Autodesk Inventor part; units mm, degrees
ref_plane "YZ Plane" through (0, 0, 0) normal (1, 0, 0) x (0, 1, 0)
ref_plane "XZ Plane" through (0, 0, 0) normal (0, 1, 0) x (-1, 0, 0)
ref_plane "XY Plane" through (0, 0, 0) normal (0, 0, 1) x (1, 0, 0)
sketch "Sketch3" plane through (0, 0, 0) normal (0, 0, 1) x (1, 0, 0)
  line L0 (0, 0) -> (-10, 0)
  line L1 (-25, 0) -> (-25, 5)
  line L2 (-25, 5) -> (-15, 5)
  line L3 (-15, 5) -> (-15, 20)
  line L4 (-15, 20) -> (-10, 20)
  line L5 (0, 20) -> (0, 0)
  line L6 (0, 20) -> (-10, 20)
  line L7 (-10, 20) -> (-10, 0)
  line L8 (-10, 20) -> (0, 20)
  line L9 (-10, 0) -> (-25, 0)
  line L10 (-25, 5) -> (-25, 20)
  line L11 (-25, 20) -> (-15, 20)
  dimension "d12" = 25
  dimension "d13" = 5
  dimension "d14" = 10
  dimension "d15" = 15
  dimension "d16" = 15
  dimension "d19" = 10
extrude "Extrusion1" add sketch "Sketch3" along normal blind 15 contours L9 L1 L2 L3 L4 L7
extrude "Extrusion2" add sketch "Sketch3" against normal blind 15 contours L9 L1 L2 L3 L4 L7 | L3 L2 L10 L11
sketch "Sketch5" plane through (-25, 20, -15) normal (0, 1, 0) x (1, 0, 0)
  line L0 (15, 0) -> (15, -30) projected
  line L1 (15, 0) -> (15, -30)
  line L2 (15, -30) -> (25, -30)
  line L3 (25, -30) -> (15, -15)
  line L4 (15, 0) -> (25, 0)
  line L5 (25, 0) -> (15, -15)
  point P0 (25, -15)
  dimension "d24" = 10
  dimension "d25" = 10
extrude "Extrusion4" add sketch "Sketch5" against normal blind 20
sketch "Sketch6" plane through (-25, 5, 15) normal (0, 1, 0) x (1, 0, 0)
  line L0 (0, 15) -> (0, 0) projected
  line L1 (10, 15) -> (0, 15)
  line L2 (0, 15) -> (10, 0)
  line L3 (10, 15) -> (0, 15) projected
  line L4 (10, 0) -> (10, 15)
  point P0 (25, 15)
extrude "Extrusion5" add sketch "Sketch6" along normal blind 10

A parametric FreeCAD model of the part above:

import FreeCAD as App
import Part
import Sketcher

doc = App.newDocument("Part")
params = doc.addObject("Spreadsheet::Sheet", "Params")
for row, (alias, value) in enumerate([
    ("sketch1_width", "15 mm"),
    ("sketch1_width2", "5 mm"),
    ("pad1_length", "15 mm"),
    ("sketch2_width", "15 mm"),
    ("sketch2_height", "20 mm"),
    ("pad2_length", "15 mm"),
    ("sketch3_width", "10 mm"),
    ("sketch3_height", "15 mm"),
    ("pad3_length", "20 mm"),
    ("sketch4_width", "10 mm"),
    ("sketch4_height", "15 mm"),
    ("pad4_length", "10 mm"),
], start=1):
    params.set(f"A{row}", alias)
    params.set(f"B{row}", "=" + value)
    params.setAlias(f"B{row}", alias)

body = doc.addObject("PartDesign::Body", "Body")

sketch1 = doc.addObject("Sketcher::SketchObject", "Sketch")
body.addObject(sketch1)
sketch1.AttachmentSupport = (doc.XY_Plane, [""])
sketch1.MapMode = "FlatFace"
sketch1.addGeometry([
    Part.LineSegment(App.Vector(-25, 0, 0), App.Vector(-10, 0, 0)),
    Part.LineSegment(App.Vector(-10, 0, 0), App.Vector(-10, 20, 0)),
    Part.LineSegment(App.Vector(-10, 20, 0), App.Vector(-15, 20, 0)),
    Part.LineSegment(App.Vector(-15, 20, 0), App.Vector(-15, 5, 0)),
    Part.LineSegment(App.Vector(-15, 5, 0), App.Vector(-25, 5, 0)),
    Part.LineSegment(App.Vector(-25, 5, 0), App.Vector(-25, 0, 0)),
], False)
sketch1.addConstraint([
    Sketcher.Constraint("Coincident", 0, 2, 1, 1),
    Sketcher.Constraint("Coincident", 1, 2, 2, 1),
    Sketcher.Constraint("Coincident", 2, 2, 3, 1),
    Sketcher.Constraint("Coincident", 3, 2, 4, 1),
    Sketcher.Constraint("Coincident", 4, 2, 5, 1),
    Sketcher.Constraint("Coincident", 5, 2, 0, 1),
    Sketcher.Constraint("Horizontal", 0),
    Sketcher.Constraint("Vertical", 1),
    Sketcher.Constraint("Horizontal", 2),
    Sketcher.Constraint("Vertical", 3),
    Sketcher.Constraint("Horizontal", 4),
    Sketcher.Constraint("Vertical", 5),
    Sketcher.Constraint("PointOnObject", 0, 2, -1),
    Sketcher.Constraint("Equal", 0, 3),
    Sketcher.Constraint("Equal", 2, 5),
    Sketcher.Constraint("DistanceX", 0, 1, 0, 2, 15.0),
    Sketcher.Constraint("DistanceX", 2, 2, 2, 1, 5.0),
    Sketcher.Constraint("DistanceX", 0, 2, -1, 1, 10.0),
])
sketch1.setExpression("Constraints[15]", "Params.sketch1_width")
sketch1.setExpression("Constraints[16]", "Params.sketch1_width2")
pad1 = doc.addObject("PartDesign::Pad", "Pad")
body.addObject(pad1)
pad1.Profile = sketch1
pad1.setExpression("Length", "Params.pad1_length")

sketch2 = doc.addObject("Sketcher::SketchObject", "Sketch001")
body.addObject(sketch2)
sketch2.AttachmentSupport = (doc.XY_Plane, [""])
sketch2.MapMode = "FlatFace"
sketch2.addGeometry([
    Part.LineSegment(App.Vector(-25, 0, 0), App.Vector(-10, 0, 0)),
    Part.LineSegment(App.Vector(-10, 0, 0), App.Vector(-10, 20, 0)),
    Part.LineSegment(App.Vector(-10, 20, 0), App.Vector(-25, 20, 0)),
    Part.LineSegment(App.Vector(-25, 20, 0), App.Vector(-25, 0, 0)),
], False)
sketch2.addConstraint([
    Sketcher.Constraint("Coincident", 0, 2, 1, 1),
    Sketcher.Constraint("Coincident", 1, 2, 2, 1),
    Sketcher.Constraint("Coincident", 2, 2, 3, 1),
    Sketcher.Constraint("Coincident", 3, 2, 0, 1),
    Sketcher.Constraint("Horizontal", 0),
    Sketcher.Constraint("Vertical", 1),
    Sketcher.Constraint("Horizontal", 2),
    Sketcher.Constraint("Vertical", 3),
    Sketcher.Constraint("PointOnObject", 0, 2, -1),
    Sketcher.Constraint("DistanceX", 0, 1, 0, 2, 15.0),
    Sketcher.Constraint("DistanceX", 0, 2, -1, 1, 10.0),
    Sketcher.Constraint("DistanceY", 1, 1, 1, 2, 20.0),
])
sketch2.setExpression("Constraints[9]", "Params.sketch2_width")
sketch2.setExpression("Constraints[11]", "Params.sketch2_height")
pad2 = doc.addObject("PartDesign::Pad", "Pad001")
body.addObject(pad2)
pad2.Profile = sketch2
pad2.setExpression("Length", "Params.pad2_length")
pad2.Reversed = True

sketch3 = doc.addObject("Sketcher::SketchObject", "Sketch002")
body.addObject(sketch3)
sketch3.AttachmentSupport = (doc.XZ_Plane, [""])
sketch3.MapMode = "FlatFace"
sketch3.AttachmentOffset = App.Placement(App.Vector(0, 0, -20), App.Rotation())
sketch3.addGeometry([
    Part.LineSegment(App.Vector(0, -15, 0), App.Vector(-10, -15, 0)),
    Part.LineSegment(App.Vector(-10, -15, 0), App.Vector(-10, 0, 0)),
    Part.LineSegment(App.Vector(-10, 0, 0), App.Vector(0, -15, 0)),
    Part.LineSegment(App.Vector(0, 15, 0), App.Vector(-10, 0, 0)),
    Part.LineSegment(App.Vector(-10, 0, 0), App.Vector(-10, 15, 0)),
    Part.LineSegment(App.Vector(-10, 15, 0), App.Vector(0, 15, 0)),
], False)
sketch3.addConstraint([
    Sketcher.Constraint("Coincident", 0, 2, 1, 1),
    Sketcher.Constraint("Coincident", 1, 2, 2, 1),
    Sketcher.Constraint("Coincident", 2, 2, 0, 1),
    Sketcher.Constraint("Coincident", 3, 2, 4, 1),
    Sketcher.Constraint("Coincident", 4, 2, 5, 1),
    Sketcher.Constraint("Coincident", 5, 2, 3, 1),
    Sketcher.Constraint("Horizontal", 0),
    Sketcher.Constraint("Vertical", 1),
    Sketcher.Constraint("Vertical", 4),
    Sketcher.Constraint("Horizontal", 5),
    Sketcher.Constraint("Coincident", 3, 2, 1, 2),
    Sketcher.Constraint("Symmetric", 2, 2, 5, 2, -1, 1),
    Sketcher.Constraint("PointOnObject", 1, 2, -1),
    Sketcher.Constraint("PointOnObject", 2, 2, -2),
    Sketcher.Constraint("DistanceX", 0, 2, 0, 1, 10.0),
    Sketcher.Constraint("DistanceY", 1, 1, 1, 2, 15.0),
])
sketch3.setExpression("Constraints[14]", "Params.sketch3_width")
sketch3.setExpression("Constraints[15]", "Params.sketch3_height")
pad3 = doc.addObject("PartDesign::Pad", "Pad002")
body.addObject(pad3)
pad3.Profile = sketch3
pad3.setExpression("Length", "Params.pad3_length")

sketch4 = doc.addObject("Sketcher::SketchObject", "Sketch003")
body.addObject(sketch4)
sketch4.AttachmentSupport = (doc.XZ_Plane, [""])
sketch4.MapMode = "FlatFace"
sketch4.AttachmentOffset = App.Placement(App.Vector(0, 0, -5), App.Rotation())
sketch4.addGeometry([
    Part.LineSegment(App.Vector(-15, 15, 0), App.Vector(-15, 0, 0)),
    Part.LineSegment(App.Vector(-15, 0, 0), App.Vector(-25, 0, 0)),
    Part.LineSegment(App.Vector(-25, 0, 0), App.Vector(-15, 15, 0)),
], False)
sketch4.addConstraint([
    Sketcher.Constraint("Coincident", 0, 2, 1, 1),
    Sketcher.Constraint("Coincident", 1, 2, 2, 1),
    Sketcher.Constraint("Coincident", 2, 2, 0, 1),
    Sketcher.Constraint("Vertical", 0),
    Sketcher.Constraint("Horizontal", 1),
    Sketcher.Constraint("PointOnObject", 0, 2, -1),
    Sketcher.Constraint("DistanceX", 1, 2, 1, 1, 10.0),
    Sketcher.Constraint("DistanceY", 0, 2, 0, 1, 15.0),
    Sketcher.Constraint("DistanceX", 0, 2, -1, 1, 15.0),
])
sketch4.setExpression("Constraints[6]", "Params.sketch4_width")
sketch4.setExpression("Constraints[7]", "Params.sketch4_height")
pad4 = doc.addObject("PartDesign::Pad", "Pad003")
body.addObject(pad4)
pad4.Profile = sketch4
pad4.setExpression("Length", "Params.pad4_length")
pad4.Reversed = True

doc.recompute()
